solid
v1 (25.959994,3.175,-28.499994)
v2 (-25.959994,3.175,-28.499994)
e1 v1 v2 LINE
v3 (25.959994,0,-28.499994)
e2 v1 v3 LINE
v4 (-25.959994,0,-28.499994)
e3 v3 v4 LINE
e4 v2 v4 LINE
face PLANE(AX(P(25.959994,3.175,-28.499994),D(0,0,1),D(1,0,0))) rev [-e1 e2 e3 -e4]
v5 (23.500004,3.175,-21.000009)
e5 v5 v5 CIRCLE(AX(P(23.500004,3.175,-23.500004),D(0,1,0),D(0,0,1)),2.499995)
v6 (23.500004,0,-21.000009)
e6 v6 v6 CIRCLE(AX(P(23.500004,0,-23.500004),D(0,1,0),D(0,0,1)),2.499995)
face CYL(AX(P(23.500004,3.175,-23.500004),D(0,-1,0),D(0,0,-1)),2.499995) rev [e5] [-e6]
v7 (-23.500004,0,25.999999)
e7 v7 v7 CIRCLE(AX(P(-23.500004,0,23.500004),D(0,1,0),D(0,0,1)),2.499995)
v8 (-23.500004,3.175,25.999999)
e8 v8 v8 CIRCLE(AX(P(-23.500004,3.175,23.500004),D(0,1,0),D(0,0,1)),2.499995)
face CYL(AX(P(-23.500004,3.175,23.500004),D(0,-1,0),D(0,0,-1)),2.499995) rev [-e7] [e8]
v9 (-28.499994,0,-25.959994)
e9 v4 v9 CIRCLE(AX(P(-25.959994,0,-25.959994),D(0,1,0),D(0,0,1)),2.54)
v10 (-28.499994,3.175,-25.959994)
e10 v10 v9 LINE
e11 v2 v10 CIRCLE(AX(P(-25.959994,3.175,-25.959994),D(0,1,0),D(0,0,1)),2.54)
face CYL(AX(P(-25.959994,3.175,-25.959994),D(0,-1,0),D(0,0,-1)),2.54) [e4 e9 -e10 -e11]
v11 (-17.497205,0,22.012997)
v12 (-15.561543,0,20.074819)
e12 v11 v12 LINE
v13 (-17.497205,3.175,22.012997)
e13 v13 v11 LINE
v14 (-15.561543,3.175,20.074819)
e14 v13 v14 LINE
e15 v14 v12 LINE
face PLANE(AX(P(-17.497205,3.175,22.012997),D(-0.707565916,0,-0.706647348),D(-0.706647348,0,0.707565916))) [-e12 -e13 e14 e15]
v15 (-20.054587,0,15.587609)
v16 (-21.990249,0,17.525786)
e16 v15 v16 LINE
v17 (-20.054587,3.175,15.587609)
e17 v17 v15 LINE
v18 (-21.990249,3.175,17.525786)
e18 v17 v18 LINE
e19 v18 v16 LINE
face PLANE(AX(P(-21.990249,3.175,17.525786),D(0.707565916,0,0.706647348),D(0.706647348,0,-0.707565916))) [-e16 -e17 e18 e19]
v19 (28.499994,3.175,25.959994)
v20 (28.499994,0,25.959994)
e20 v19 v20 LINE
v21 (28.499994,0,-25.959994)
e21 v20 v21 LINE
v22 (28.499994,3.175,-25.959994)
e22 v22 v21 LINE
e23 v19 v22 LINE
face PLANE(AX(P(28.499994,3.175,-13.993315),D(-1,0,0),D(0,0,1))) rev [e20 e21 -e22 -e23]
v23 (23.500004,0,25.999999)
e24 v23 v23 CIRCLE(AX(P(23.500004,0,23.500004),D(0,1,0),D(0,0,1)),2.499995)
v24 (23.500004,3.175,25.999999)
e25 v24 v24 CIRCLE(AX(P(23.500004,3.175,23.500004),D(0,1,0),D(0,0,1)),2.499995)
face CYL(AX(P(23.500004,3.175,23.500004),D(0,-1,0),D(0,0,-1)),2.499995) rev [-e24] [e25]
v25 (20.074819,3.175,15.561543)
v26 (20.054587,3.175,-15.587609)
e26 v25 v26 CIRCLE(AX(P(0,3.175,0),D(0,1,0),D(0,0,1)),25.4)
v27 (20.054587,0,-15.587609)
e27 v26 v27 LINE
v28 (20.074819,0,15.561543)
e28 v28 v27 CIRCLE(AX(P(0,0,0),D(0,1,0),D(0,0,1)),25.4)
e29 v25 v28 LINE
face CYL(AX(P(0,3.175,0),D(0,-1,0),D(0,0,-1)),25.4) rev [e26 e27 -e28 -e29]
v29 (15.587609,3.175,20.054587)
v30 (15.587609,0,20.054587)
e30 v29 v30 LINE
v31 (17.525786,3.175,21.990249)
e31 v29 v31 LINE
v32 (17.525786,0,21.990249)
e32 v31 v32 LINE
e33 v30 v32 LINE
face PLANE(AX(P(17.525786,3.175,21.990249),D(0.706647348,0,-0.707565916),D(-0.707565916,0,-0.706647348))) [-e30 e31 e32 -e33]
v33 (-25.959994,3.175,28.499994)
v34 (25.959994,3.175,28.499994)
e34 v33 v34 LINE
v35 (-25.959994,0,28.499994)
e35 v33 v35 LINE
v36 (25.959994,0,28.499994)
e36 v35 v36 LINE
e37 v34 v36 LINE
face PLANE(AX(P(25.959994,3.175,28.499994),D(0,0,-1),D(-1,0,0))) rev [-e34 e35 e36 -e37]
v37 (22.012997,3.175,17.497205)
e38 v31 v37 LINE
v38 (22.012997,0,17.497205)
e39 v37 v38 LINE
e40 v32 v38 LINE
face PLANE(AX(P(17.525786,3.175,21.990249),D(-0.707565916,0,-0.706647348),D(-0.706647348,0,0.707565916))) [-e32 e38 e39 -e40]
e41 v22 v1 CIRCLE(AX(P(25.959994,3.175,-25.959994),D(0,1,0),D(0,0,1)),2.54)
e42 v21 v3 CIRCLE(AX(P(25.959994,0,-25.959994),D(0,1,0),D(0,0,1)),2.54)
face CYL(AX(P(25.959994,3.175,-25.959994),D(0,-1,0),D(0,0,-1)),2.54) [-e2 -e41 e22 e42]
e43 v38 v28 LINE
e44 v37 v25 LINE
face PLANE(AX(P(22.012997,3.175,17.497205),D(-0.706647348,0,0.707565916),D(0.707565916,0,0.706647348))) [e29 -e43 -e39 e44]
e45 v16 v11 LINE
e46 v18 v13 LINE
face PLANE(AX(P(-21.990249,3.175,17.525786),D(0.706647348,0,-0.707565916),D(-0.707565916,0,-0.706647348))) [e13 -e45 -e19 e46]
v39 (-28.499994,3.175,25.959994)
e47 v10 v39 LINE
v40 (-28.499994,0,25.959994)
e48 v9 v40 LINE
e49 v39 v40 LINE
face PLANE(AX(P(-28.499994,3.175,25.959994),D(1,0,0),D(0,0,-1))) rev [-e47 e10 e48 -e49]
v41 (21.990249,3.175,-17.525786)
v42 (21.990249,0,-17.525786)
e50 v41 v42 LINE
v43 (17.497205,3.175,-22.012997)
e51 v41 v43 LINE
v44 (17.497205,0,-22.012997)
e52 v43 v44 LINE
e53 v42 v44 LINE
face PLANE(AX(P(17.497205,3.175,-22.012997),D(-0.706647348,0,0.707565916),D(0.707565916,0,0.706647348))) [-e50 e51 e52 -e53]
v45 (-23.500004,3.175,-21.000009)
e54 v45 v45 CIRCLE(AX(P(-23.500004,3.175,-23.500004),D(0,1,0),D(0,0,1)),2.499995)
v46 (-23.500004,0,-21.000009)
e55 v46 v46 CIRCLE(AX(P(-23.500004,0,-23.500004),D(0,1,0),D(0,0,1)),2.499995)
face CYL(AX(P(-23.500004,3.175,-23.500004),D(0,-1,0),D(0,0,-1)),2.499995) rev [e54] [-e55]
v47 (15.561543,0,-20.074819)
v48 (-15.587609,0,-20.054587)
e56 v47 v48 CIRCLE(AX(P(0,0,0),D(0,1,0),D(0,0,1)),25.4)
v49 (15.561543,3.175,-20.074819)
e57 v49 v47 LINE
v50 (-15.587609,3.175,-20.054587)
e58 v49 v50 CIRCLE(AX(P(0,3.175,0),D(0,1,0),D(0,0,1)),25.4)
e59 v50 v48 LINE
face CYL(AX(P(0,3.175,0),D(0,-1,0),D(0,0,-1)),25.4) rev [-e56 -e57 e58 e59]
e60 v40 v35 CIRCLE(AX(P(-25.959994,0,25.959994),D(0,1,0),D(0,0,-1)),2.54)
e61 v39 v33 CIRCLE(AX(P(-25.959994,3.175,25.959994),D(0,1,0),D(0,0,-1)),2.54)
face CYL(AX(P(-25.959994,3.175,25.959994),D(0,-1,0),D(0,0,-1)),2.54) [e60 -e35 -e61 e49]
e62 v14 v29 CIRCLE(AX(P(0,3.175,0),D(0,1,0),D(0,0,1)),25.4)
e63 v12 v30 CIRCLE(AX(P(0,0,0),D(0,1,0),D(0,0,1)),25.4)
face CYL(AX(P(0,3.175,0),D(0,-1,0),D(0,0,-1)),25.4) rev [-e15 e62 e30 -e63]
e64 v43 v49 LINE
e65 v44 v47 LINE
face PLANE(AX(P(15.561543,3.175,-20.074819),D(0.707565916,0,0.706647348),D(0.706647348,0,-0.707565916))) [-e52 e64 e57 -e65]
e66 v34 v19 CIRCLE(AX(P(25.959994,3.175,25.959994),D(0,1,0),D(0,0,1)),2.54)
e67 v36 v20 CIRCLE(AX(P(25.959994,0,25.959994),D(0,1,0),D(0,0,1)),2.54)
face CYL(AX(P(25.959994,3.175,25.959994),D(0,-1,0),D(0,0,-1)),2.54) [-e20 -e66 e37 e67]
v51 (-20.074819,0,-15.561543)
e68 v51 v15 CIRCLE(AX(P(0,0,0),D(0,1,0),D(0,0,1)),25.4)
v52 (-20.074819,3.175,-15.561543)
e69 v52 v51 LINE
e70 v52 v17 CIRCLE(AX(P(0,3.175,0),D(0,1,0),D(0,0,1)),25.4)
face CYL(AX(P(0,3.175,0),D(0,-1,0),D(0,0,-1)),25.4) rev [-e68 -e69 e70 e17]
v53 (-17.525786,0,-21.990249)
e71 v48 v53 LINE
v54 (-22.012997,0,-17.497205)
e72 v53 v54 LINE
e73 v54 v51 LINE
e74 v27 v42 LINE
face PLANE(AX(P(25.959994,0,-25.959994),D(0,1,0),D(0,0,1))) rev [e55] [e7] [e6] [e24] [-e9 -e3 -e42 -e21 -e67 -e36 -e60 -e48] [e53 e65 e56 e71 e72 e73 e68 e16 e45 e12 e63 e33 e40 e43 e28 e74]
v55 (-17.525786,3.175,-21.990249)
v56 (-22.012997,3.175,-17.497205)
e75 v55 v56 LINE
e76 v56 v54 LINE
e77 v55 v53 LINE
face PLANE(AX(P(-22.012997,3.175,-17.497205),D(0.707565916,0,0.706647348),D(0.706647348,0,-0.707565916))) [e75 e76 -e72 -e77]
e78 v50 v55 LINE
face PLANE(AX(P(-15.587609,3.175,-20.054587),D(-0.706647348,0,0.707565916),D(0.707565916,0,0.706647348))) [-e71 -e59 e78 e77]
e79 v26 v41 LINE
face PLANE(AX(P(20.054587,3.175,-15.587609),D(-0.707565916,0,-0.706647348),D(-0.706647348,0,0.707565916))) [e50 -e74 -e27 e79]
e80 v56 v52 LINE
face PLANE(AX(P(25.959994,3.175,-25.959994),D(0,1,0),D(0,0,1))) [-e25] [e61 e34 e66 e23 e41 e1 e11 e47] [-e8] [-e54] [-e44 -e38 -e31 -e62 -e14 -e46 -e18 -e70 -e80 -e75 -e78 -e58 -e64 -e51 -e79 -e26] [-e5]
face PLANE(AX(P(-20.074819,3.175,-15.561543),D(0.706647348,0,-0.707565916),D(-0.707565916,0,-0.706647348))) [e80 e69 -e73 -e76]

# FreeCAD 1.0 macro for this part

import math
import FreeCAD as App
import Part
import Sketcher
Q = App.Units.Quantity

doc = App.newDocument("Part")
body = doc.addObject("PartDesign::Body", "Body")

sketch1 = doc.addObject("Sketcher::SketchObject", "Sketch")
body.addObject(sketch1)
sketch1.AttachmentSupport = (doc.XZ_Plane, [""])
sketch1.MapMode = "FlatFace"
sketch1.addGeometry([
    Part.ArcOfCircle(Part.Circle(App.Vector(-25.959994, -25.959994, 0), App.Vector(0, 0, 1), 2.54), math.radians(-180), math.radians(-90)),
    Part.LineSegment(App.Vector(-28.499994, -25.959994, 0), App.Vector(-28.499994, 25.959994, 0)),
    Part.ArcOfCircle(Part.Circle(App.Vector(-25.959994, 25.959994, 0), App.Vector(0, 0, 1), 2.54), math.radians(90), math.radians(180)),
    Part.LineSegment(App.Vector(-25.959994, 28.499994, 0), App.Vector(25.959994, 28.499994, 0)),
    Part.ArcOfCircle(Part.Circle(App.Vector(25.959994, 25.959994, 0), App.Vector(0, 0, 1), 2.54), math.radians(0), math.radians(90)),
    Part.LineSegment(App.Vector(28.499994, 25.959994, 0), App.Vector(28.499994, -25.959994, 0)),
    Part.ArcOfCircle(Part.Circle(App.Vector(25.959994, -25.959994, 0), App.Vector(0, 0, 1), 2.54), math.radians(-90), math.radians(0)),
    Part.LineSegment(App.Vector(25.959994, -28.499994, 0), App.Vector(-25.959994, -28.499994, 0)),
    Part.Circle(App.Vector(-23.500004, 23.500004, 0), App.Vector(0, 0, 1), 2.499995),
    Part.Circle(App.Vector(23.500004, 23.500004, 0), App.Vector(0, 0, 1), 2.499995),
    Part.Circle(App.Vector(-23.500004, -23.500004, 0), App.Vector(0, 0, 1), 2.499995),
    Part.LineSegment(App.Vector(22.012997, 17.497205, 0), App.Vector(17.525786, 21.990249, 0)),
    Part.LineSegment(App.Vector(17.525786, 21.990249, 0), App.Vector(15.587609, 20.054587, 0)),
    Part.ArcOfCircle(Part.Circle(App.Vector(0, 0, 0), App.Vector(0, 0, 1), 25.4), math.radians(52.143541), math.radians(127.782029)),
    Part.LineSegment(App.Vector(-15.561543, 20.074819, 0), App.Vector(-17.497205, 22.012997, 0)),
    Part.LineSegment(App.Vector(-17.497205, 22.012997, 0), App.Vector(-21.990249, 17.525786, 0)),
    Part.LineSegment(App.Vector(-21.990249, 17.525786, 0), App.Vector(-20.054587, 15.587609, 0)),
    Part.ArcOfCircle(Part.Circle(App.Vector(0, 0, 0), App.Vector(0, 0, 1), 25.4), math.radians(142.143541), math.radians(217.782029)),
    Part.LineSegment(App.Vector(-20.074819, -15.561543, 0), App.Vector(-22.012997, -17.497205, 0)),
    Part.LineSegment(App.Vector(-22.012997, -17.497205, 0), App.Vector(-17.525786, -21.990249, 0)),
    Part.LineSegment(App.Vector(-17.525786, -21.990249, 0), App.Vector(-15.587609, -20.054587, 0)),
    Part.ArcOfCircle(Part.Circle(App.Vector(0, 0, 0), App.Vector(0, 0, 1), 25.4), math.radians(-127.856459), math.radians(-52.217971)),
    Part.LineSegment(App.Vector(15.561543, -20.074819, 0), App.Vector(17.497205, -22.012997, 0)),
    Part.LineSegment(App.Vector(17.497205, -22.012997, 0), App.Vector(21.990249, -17.525786, 0)),
    Part.LineSegment(App.Vector(21.990249, -17.525786, 0), App.Vector(20.054587, -15.587609, 0)),
    Part.ArcOfCircle(Part.Circle(App.Vector(0, 0, 0), App.Vector(0, 0, 1), 25.4), math.radians(-37.856459), math.radians(37.782029)),
    Part.LineSegment(App.Vector(20.074819, 15.561543, 0), App.Vector(22.012997, 17.497205, 0)),
    Part.Circle(App.Vector(23.500004, -23.500004, 0), App.Vector(0, 0, 1), 2.499995),
], False)
sketch1.addConstraint([
    Sketcher.Constraint("Tangent", 0, 1, 1, 1),
    Sketcher.Constraint("Tangent", 1, 2, 2, 2),
    Sketcher.Constraint("Tangent", 2, 1, 3, 1),
    Sketcher.Constraint("Tangent", 3, 2, 4, 2),
    Sketcher.Constraint("Tangent", 4, 1, 5, 1),
    Sketcher.Constraint("Tangent", 5, 2, 6, 2),
    Sketcher.Constraint("Tangent", 6, 1, 7, 1),
    Sketcher.Constraint("Tangent", 7, 2, 0, 2),
    Sketcher.Constraint("Coincident", 11, 2, 12, 1),
    Sketcher.Constraint("Coincident", 12, 2, 13, 1),
    Sketcher.Constraint("Coincident", 13, 2, 14, 1),
    Sketcher.Constraint("Coincident", 14, 2, 15, 1),
    Sketcher.Constraint("Coincident", 15, 2, 16, 1),
    Sketcher.Constraint("Coincident", 16, 2, 17, 1),
    Sketcher.Constraint("Coincident", 17, 2, 18, 1),
    Sketcher.Constraint("Coincident", 18, 2, 19, 1),
    Sketcher.Constraint("Coincident", 19, 2, 20, 1),
    Sketcher.Constraint("Coincident", 20, 2, 21, 1),
    Sketcher.Constraint("Coincident", 21, 2, 22, 1),
    Sketcher.Constraint("Coincident", 22, 2, 23, 1),
    Sketcher.Constraint("Coincident", 23, 2, 24, 1),
    Sketcher.Constraint("Coincident", 24, 2, 25, 1),
    Sketcher.Constraint("Coincident", 25, 2, 26, 1),
    Sketcher.Constraint("Coincident", 26, 2, 11, 1),
    Sketcher.Constraint("Vertical", 1),
    Sketcher.Constraint("Horizontal", 3),
    Sketcher.Constraint("Vertical", 5),
    Sketcher.Constraint("Horizontal", 7),
    Sketcher.Constraint("Coincident", 13, 3, -1, 1),
    Sketcher.Constraint("Coincident", 17, 3, -1, 1),
    Sketcher.Constraint("Coincident", 21, 3, -1, 1),
    Sketcher.Constraint("Coincident", 25, 3, -1, 1),
    Sketcher.Constraint("Equal", 0, 2),
    Sketcher.Constraint("Equal", 2, 4),
    Sketcher.Constraint("Equal", 4, 6),
    Sketcher.Constraint("Equal", 8, 9),
    Sketcher.Constraint("Equal", 9, 10),
    Sketcher.Constraint("Equal", 13, 17),
    Sketcher.Constraint("Equal", 17, 21),
    Sketcher.Constraint("Equal", 21, 25),
    Sketcher.Constraint("Equal", 10, 27),
    Sketcher.Constraint("Symmetric", 0, 3, 4, 3, -1, 1),
    Sketcher.Constraint("Symmetric", 9, 3, 10, 3, -1, 1),
    Sketcher.Constraint("Symmetric", 8, 3, 27, 3, -1, 1),
    Sketcher.Constraint("Symmetric", 11, 2, 19, 2, -1, 1),
    Sketcher.Constraint("Symmetric", 14, 2, 22, 2, -1, 1),
    Sketcher.Constraint("Symmetric", 15, 2, 23, 2, -1, 1),
    Sketcher.Constraint("Symmetric", 18, 2, 26, 2, -1, 1),
    Sketcher.Constraint("Symmetric", 8, 3, 9, 3, -2),
    Sketcher.Constraint("Perpendicular", 11, 12),
    Sketcher.Constraint("Perpendicular", 12, 14),
    Sketcher.Constraint("Perpendicular", 14, 15),
    Sketcher.Constraint("Perpendicular", 15, 16),
    Sketcher.Constraint("Perpendicular", 16, 18),
    Sketcher.Constraint("Perpendicular", 19, 20),
    Sketcher.Constraint("Perpendicular", 20, 22),
    Sketcher.Constraint("Perpendicular", 23, 24),
    Sketcher.Constraint("Perpendicular", 24, 26),
    Sketcher.Constraint("Equal", 7, 1),
    Sketcher.Constraint("Equal", 12, 14),
    Sketcher.Constraint("Equal", 11, 15),
    Sketcher.Constraint("Equal", 14, 16),
    Sketcher.Constraint("Equal", 16, 18),
    Sketcher.Constraint("Radius", 13, Q("1 in")),
    Sketcher.Constraint("Radius", 0, Q("0.1 in")),
    Sketcher.Constraint("Distance", 11, Q("0.25 in")),
    Sketcher.Constraint("Diameter", 8, 4.99999),
    Sketcher.Constraint("DistanceX", 8, 3, 14, 2, 6.002799),
    Sketcher.Constraint("DistanceY", 10, 3, 18, 2, 6.002799),
    Sketcher.Constraint("Distance", 12, 2.739219),
    Sketcher.Constraint("DistanceX", 3, 1, 3, 2, 51.919988),
    Sketcher.Constraint("DistanceY", -1, 1, 11, 2, 21.990249),
])
pad1 = doc.addObject("PartDesign::Pad", "Pad")
body.addObject(pad1)
pad1.Profile = sketch1
pad1.Length = Q("0.125 in")
pad1.Reversed = True

doc.recompute()
